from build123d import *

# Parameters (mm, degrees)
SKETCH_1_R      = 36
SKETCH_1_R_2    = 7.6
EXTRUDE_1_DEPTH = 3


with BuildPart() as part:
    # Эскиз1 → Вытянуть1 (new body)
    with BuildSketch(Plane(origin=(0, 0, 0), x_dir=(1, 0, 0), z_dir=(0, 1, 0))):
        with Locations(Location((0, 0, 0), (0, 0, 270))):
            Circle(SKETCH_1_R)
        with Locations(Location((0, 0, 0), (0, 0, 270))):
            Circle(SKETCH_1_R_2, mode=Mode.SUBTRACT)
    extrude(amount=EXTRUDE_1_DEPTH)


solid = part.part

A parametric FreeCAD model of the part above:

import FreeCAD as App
import Part
import Sketcher

V = App.Vector
Q = App.Units.Quantity

doc = App.newDocument("Part")
body = doc.addObject("PartDesign::Body", "Body")

# Sketch on XZ plane
sketch1 = body.newObject("Sketcher::SketchObject", "Sketch")
sketch1.AttachmentSupport = (doc.getObject("XZ_Plane"), [""])
sketch1.MapMode = "FlatFace"
sketch1.addGeometry([
    Part.Circle(V(0, 0, 0), V(0, 0, 1), 36),
    Part.Circle(V(0, 0, 0), V(0, 0, 1), 8),
], False)
sketch1.addConstraint([
    Sketcher.Constraint("Coincident", 0, 3, -1, 1),
    Sketcher.Constraint("Coincident", 1, 3, -1, 1),
    Sketcher.Constraint("Diameter", 0, Q("72 mm")),
    Sketcher.Constraint("Diameter", 1, Q("15.2 mm")),
])
pad1 = body.newObject("PartDesign::Pad", "Pad")
pad1.Profile = sketch1
pad1.Length = 3
pad1.Reversed = True

doc.recompute()
